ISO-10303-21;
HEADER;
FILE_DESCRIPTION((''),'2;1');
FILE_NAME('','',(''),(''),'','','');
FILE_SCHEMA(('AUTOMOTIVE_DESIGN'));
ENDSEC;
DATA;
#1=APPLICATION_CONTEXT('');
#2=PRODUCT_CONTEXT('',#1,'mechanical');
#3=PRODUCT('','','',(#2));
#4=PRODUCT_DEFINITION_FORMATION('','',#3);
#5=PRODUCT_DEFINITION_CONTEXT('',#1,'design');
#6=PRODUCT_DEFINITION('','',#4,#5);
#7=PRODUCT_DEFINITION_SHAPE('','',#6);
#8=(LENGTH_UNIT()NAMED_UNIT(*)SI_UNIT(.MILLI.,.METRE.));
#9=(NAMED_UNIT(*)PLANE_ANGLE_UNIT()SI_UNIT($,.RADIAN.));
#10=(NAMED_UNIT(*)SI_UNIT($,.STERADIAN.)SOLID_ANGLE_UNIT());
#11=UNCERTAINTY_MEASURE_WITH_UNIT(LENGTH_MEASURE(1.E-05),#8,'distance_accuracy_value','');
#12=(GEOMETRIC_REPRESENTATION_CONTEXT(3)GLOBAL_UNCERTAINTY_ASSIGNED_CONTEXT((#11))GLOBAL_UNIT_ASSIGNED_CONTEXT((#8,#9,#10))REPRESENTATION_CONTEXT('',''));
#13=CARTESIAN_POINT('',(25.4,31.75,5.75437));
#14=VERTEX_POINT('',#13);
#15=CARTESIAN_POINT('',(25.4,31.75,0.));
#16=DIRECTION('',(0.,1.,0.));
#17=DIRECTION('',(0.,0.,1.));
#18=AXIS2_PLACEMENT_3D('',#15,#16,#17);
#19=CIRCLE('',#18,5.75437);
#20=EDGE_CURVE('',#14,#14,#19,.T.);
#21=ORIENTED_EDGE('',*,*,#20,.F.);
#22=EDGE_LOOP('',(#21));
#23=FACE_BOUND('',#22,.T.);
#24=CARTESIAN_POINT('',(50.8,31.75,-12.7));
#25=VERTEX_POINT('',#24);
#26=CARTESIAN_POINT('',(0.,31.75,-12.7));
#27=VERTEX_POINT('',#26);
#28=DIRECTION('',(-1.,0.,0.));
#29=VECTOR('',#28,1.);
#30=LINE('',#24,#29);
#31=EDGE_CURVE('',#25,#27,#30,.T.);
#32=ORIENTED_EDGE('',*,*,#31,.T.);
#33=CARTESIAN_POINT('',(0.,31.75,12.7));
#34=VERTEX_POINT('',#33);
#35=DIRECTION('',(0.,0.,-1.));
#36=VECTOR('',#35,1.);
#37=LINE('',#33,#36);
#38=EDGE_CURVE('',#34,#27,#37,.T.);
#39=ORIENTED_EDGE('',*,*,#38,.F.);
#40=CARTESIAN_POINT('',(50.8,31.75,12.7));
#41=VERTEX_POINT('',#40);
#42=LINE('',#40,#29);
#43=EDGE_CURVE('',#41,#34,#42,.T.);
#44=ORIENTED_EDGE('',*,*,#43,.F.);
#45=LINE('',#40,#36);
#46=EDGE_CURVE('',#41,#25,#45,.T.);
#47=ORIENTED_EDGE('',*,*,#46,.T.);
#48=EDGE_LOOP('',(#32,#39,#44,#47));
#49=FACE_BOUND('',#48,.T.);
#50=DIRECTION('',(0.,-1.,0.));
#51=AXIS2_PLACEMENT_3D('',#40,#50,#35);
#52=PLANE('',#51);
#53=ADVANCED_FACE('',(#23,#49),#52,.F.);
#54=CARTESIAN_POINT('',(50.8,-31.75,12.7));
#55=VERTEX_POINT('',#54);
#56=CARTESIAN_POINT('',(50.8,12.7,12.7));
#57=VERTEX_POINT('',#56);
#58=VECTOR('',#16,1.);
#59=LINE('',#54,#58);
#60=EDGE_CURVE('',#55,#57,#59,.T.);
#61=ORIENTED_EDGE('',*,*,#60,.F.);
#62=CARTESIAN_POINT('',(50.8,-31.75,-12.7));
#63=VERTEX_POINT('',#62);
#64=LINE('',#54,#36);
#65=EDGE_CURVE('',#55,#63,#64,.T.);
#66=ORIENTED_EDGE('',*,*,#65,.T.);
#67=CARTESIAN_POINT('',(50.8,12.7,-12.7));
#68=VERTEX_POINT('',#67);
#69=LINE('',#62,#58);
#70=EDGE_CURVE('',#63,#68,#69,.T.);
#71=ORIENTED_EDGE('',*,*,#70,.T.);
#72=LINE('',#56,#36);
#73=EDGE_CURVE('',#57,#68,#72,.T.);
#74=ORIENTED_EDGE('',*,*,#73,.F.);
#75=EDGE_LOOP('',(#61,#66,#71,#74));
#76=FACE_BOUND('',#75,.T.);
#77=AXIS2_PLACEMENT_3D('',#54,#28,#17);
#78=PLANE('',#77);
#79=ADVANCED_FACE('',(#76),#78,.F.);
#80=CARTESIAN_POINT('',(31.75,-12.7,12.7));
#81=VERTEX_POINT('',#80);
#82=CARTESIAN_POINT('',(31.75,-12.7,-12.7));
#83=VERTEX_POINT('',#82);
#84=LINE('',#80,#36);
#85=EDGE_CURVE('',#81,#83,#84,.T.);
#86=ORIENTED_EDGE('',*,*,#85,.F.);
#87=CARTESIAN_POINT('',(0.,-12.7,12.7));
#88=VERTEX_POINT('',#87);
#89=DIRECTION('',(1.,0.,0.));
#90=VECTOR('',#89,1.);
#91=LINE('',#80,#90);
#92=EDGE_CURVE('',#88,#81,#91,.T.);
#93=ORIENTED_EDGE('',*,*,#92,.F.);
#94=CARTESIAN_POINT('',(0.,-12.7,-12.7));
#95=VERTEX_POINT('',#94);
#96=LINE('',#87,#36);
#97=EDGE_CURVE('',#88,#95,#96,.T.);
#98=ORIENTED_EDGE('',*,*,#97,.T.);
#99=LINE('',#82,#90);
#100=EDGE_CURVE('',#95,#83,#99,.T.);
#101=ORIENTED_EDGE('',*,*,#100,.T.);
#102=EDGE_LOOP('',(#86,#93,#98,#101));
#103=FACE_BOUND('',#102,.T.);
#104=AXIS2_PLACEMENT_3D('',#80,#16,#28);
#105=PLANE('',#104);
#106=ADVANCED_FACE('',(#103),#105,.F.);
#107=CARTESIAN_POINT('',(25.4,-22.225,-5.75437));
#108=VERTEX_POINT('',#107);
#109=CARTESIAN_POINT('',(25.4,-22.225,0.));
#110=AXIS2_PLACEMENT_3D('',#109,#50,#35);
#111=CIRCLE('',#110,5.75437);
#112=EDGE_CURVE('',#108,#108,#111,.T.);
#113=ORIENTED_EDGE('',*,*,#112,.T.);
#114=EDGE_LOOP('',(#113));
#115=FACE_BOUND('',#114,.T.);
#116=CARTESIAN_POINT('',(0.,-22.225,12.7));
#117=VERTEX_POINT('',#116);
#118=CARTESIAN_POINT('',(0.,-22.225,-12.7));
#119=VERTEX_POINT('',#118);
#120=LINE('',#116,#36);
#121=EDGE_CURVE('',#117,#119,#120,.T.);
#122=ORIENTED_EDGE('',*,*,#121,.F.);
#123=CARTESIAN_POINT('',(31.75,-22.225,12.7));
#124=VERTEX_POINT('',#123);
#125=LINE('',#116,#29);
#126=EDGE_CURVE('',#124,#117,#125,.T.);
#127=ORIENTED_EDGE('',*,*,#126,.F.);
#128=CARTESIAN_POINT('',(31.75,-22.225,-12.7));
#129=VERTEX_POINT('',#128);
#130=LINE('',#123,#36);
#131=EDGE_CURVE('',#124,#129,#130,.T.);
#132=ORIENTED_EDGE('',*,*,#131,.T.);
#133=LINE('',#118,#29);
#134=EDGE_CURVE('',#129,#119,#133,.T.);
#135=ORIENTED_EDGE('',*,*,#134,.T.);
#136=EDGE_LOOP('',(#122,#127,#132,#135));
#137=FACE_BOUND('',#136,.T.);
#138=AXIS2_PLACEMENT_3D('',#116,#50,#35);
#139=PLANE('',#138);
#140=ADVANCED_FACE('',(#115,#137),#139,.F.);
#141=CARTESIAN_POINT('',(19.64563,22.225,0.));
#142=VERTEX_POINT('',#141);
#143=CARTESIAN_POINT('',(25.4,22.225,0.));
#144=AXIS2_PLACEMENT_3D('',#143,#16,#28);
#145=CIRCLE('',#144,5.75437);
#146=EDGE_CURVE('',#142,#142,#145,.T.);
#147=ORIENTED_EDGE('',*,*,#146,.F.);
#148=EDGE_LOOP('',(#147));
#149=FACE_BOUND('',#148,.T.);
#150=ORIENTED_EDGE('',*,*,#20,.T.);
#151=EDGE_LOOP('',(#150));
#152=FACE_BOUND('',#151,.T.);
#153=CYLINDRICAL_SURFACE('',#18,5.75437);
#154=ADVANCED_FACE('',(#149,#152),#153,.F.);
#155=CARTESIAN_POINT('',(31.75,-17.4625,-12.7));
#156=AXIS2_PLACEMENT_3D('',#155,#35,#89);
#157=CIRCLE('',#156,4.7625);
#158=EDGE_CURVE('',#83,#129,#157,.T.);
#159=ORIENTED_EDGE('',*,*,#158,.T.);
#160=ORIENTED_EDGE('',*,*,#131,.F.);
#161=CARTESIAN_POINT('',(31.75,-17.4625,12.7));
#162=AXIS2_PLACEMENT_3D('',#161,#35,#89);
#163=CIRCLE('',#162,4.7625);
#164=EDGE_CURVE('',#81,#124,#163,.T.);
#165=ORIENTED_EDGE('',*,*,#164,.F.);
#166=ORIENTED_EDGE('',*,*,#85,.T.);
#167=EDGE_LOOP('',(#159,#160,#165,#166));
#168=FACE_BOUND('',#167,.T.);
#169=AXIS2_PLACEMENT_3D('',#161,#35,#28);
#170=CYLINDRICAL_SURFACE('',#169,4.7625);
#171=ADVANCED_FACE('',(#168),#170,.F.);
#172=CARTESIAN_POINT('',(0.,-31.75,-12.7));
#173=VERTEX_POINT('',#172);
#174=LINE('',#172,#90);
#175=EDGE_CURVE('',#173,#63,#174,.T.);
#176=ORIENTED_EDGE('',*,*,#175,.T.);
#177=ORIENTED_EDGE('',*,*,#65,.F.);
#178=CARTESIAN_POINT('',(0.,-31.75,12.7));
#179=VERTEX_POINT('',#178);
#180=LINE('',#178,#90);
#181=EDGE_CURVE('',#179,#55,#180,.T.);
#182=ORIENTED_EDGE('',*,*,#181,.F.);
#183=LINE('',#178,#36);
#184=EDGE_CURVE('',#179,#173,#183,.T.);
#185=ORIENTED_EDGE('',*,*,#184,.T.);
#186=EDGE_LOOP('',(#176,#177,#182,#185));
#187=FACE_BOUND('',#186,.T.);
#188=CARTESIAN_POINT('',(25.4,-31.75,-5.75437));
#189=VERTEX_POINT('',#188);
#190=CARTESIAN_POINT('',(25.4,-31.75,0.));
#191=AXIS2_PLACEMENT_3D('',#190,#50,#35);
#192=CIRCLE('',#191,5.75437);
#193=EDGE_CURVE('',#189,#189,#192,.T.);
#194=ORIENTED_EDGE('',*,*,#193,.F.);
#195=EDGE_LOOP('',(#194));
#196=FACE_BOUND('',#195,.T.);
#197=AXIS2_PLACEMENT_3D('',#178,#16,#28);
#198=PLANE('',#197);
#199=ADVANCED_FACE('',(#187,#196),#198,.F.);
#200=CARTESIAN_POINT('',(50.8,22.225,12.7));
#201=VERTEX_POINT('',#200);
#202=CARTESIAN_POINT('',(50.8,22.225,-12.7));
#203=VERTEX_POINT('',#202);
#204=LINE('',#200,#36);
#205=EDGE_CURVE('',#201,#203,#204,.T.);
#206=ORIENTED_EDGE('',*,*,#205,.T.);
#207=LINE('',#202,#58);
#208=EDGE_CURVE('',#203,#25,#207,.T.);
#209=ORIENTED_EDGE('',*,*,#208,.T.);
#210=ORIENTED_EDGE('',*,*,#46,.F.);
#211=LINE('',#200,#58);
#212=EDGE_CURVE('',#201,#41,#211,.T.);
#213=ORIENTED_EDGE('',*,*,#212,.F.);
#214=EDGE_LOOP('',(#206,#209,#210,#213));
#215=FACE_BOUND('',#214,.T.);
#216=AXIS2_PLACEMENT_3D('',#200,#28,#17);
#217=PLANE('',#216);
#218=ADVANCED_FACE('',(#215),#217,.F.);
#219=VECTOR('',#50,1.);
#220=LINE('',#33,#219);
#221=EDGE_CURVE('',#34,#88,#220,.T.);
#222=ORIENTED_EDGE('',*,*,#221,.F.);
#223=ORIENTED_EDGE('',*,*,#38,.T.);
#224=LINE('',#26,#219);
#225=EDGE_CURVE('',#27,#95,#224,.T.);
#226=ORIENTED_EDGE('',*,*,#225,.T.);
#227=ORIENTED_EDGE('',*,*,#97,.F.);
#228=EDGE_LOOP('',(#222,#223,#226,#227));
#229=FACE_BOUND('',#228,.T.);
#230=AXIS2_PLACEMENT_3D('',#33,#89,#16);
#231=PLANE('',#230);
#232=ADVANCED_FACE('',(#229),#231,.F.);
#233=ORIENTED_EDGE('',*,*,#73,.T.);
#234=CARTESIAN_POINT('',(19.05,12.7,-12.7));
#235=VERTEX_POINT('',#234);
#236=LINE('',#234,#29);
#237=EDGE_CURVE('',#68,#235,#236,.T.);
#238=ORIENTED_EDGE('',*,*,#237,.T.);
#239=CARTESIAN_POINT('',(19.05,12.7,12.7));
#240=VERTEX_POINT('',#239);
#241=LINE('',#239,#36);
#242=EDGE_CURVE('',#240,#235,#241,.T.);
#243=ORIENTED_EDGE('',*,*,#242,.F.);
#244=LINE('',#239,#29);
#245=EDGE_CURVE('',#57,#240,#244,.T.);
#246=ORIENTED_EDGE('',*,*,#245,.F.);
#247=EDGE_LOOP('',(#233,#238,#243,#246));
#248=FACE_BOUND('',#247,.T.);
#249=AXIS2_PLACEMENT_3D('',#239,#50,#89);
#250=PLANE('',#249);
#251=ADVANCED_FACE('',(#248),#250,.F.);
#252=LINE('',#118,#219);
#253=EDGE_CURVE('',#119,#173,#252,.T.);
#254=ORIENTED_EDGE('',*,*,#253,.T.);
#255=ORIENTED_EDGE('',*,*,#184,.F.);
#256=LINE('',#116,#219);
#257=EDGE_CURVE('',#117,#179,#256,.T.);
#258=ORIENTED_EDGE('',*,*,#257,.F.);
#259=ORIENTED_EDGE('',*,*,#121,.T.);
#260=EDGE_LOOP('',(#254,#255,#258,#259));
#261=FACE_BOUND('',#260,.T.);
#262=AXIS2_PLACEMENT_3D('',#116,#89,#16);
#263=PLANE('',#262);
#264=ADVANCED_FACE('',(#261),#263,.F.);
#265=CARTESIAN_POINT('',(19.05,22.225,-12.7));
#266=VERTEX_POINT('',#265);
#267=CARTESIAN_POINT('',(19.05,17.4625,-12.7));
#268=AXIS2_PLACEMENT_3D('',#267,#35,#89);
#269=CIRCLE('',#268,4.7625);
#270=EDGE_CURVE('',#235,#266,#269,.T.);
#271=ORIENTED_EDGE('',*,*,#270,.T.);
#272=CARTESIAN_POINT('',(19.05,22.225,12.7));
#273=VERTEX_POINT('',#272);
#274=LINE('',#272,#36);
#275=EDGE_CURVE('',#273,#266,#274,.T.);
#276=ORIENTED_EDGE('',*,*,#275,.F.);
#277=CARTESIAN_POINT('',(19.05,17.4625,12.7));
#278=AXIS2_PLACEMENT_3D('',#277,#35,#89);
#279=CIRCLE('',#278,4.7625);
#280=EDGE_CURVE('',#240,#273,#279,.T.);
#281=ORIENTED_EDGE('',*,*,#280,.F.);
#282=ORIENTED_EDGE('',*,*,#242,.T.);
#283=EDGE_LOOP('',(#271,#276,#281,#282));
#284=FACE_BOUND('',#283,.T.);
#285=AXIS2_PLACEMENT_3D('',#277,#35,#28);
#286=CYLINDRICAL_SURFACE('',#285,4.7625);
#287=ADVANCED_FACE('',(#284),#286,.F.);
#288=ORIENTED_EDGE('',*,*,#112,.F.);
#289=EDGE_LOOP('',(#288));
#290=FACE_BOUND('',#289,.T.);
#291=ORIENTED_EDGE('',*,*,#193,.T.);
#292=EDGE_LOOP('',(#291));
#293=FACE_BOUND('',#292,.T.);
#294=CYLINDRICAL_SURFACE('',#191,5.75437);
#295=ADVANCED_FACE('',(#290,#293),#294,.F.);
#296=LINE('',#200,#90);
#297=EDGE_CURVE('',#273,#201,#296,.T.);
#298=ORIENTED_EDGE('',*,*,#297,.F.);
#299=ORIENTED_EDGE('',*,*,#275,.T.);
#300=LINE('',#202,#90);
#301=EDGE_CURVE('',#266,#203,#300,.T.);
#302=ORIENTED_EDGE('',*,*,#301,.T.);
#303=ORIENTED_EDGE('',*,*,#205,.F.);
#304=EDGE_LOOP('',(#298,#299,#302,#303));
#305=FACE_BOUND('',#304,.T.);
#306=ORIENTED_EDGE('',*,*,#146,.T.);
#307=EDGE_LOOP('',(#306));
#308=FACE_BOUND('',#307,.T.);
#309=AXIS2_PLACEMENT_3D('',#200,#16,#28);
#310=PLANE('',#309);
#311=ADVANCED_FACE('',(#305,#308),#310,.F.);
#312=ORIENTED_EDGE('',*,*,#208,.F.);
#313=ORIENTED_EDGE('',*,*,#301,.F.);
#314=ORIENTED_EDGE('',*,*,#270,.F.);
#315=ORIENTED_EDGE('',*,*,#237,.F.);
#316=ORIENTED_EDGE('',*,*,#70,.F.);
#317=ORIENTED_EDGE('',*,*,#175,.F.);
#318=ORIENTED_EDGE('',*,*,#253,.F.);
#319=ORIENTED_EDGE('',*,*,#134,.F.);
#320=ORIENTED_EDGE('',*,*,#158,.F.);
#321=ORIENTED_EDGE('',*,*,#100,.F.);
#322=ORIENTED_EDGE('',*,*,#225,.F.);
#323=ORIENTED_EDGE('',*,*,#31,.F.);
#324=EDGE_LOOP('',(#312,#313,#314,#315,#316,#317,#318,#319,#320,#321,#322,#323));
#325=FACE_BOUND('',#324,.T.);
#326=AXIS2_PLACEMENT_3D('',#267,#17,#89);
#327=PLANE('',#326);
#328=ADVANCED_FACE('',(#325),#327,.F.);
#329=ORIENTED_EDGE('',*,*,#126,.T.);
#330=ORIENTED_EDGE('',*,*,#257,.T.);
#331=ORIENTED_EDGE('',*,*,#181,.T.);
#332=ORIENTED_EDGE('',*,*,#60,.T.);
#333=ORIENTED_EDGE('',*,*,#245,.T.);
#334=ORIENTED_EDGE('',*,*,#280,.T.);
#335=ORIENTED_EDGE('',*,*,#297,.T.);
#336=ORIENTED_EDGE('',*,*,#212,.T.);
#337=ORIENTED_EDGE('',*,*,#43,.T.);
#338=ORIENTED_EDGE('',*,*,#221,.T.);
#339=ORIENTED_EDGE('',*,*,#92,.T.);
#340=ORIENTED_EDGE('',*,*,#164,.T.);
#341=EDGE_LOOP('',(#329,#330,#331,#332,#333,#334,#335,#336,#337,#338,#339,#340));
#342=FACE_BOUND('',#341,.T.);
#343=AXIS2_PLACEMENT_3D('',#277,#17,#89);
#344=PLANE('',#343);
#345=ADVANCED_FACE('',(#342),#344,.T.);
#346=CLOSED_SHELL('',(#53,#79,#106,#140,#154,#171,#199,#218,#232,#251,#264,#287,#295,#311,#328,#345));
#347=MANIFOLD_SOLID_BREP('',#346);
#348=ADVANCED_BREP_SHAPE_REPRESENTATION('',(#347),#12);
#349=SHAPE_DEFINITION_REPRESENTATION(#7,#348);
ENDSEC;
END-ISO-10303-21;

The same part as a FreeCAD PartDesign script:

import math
import FreeCAD as App
import Part
import Sketcher
Q = App.Units.Quantity

doc = App.newDocument("Part")
body = doc.addObject("PartDesign::Body", "Body")

# Sketch on XY plane
sketch1 = doc.addObject("Sketcher::SketchObject", "Sketch")
body.addObject(sketch1)
sketch1.AttachmentSupport = (doc.XY_Plane, [""])
sketch1.MapMode = "FlatFace"
sketch1.addGeometry([
    Part.LineSegment(App.Vector(0, -31.8, 0), App.Vector(50.8, -31.8, 0)),  # 0
    Part.LineSegment(App.Vector(50.8, -31.8, 0), App.Vector(50.8, 12.7, 0)),  # 1
    Part.LineSegment(App.Vector(50.8, 12.7, 0), App.Vector(19.1, 12.7, 0)),  # 2
    Part.ArcOfCircle(Part.Circle(App.Vector(19.1, 17.5, 0), App.Vector(0, 0, 1), 4.8), math.radians(90), math.radians(270)),  # 3
    Part.LineSegment(App.Vector(19.1, 22.2, 0), App.Vector(50.8, 22.2, 0)),  # 4
    Part.LineSegment(App.Vector(50.8, 22.2, 0), App.Vector(50.8, 31.8, 0)),  # 5
    Part.LineSegment(App.Vector(50.8, 31.8, 0), App.Vector(0, 31.8, 0)),  # 6
    Part.LineSegment(App.Vector(0, 31.8, 0), App.Vector(0, -12.7, 0)),  # 7
    Part.LineSegment(App.Vector(0, -12.7, 0), App.Vector(31.8, -12.7, 0)),  # 8
    Part.ArcOfCircle(Part.Circle(App.Vector(31.8, -17.5, 0), App.Vector(0, 0, 1), 4.8), math.radians(-90), math.radians(90)),  # 9
    Part.LineSegment(App.Vector(31.8, -22.2, 0), App.Vector(0, -22.2, 0)),  # 10
    Part.LineSegment(App.Vector(0, -22.2, 0), App.Vector(0, -31.8, 0)),  # 11
], False)
sketch1.addConstraint([
    Sketcher.Constraint("Coincident", 0, 2, 1, 1),
    Sketcher.Constraint("Coincident", 1, 2, 2, 1),
    Sketcher.Constraint("Tangent", 2, 2, 3, 2),
    Sketcher.Constraint("Tangent", 3, 1, 4, 1),
    Sketcher.Constraint("Coincident", 4, 2, 5, 1),
    Sketcher.Constraint("Coincident", 5, 2, 6, 1),
    Sketcher.Constraint("Coincident", 6, 2, 7, 1),
    Sketcher.Constraint("Coincident", 7, 2, 8, 1),
    Sketcher.Constraint("Tangent", 8, 2, 9, 2),
    Sketcher.Constraint("Tangent", 9, 1, 10, 1),
    Sketcher.Constraint("Coincident", 10, 2, 11, 1),
    Sketcher.Constraint("Coincident", 11, 2, 0, 1),
    Sketcher.Constraint("Horizontal", 0),
    Sketcher.Constraint("Vertical", 1),
    Sketcher.Constraint("Horizontal", 2),
    Sketcher.Constraint("Horizontal", 4),
    Sketcher.Constraint("Vertical", 5),
    Sketcher.Constraint("Horizontal", 6),
    Sketcher.Constraint("Vertical", 7),
    Sketcher.Constraint("Horizontal", 8),
    Sketcher.Constraint("Horizontal", 10),
    Sketcher.Constraint("Vertical", 11),
    Sketcher.Constraint("Equal", 3, 9),
    Sketcher.Constraint("Symmetric", 6, 2, 11, 2, -1, 1),
    Sketcher.Constraint("PointOnObject", 6, 2, -2),
    Sketcher.Constraint("Vertical", 1, 2, 4, 2),
    Sketcher.Constraint("Equal", 4, 8),
    Sketcher.Constraint("Equal", 1, 7),
    Sketcher.Constraint("DistanceX", 0, 1, 0, 2, Q("2 in")),
    Sketcher.Constraint("Radius", 3, Q("0.1875 in")),
    Sketcher.Constraint("DistanceY", 7, 2, 2, 2, Q("1 in")),
    Sketcher.Constraint("DistanceX", 2, 2, 2, 1, Q("1.25 in")),
    Sketcher.Constraint("DistanceY", 1, 1, 1, 2, Q("1.75 in")),
])
pad1 = doc.addObject("PartDesign::Pad", "Pad")
body.addObject(pad1)
pad1.Profile = sketch1
pad1.Length = Q("1 in")
pad1.Midplane = True

# Sketch on XZ plane
sketch2 = doc.addObject("Sketcher::SketchObject", "Sketch001")
body.addObject(sketch2)
sketch2.AttachmentSupport = (doc.XZ_Plane, [""])
sketch2.MapMode = "FlatFace"
sketch2.AttachmentOffset = App.Placement(App.Vector(0, 0, -1.25 * 25.4), App.Rotation())
sketch2.addGeometry(Part.Circle(App.Vector(25, 0, 0), App.Vector(0, 0, 1), 6), False)
sketch2.addConstraint([
    Sketcher.Constraint("PointOnObject", 0, 3, -1),
    Sketcher.Constraint("DistanceX", -1, 1, 0, 3, Q("1 in")),
    Sketcher.Constraint("Diameter", 0, Q("0.4531 in")),
])
doc.recompute()
hole = doc.addObject("PartDesign::Hole", "Hole")
body.addObject(hole)
hole.Profile = sketch2
hole.ThreadType = "None"
hole.Diameter = Q("0.4531 in")
hole.DepthType = "Dimension"
hole.Depth = Q("0.375 in")
hole.DrillPoint = "Flat"
hole.Reversed = True
doc.recompute()

mirrored = doc.addObject("PartDesign::Mirrored", "Mirrored")
body.addObject(mirrored)
mirrored.Originals = [hole]
mirrored.MirrorPlane = (doc.XZ_Plane, [""])
body.Tip = mirrored

doc.recompute()
